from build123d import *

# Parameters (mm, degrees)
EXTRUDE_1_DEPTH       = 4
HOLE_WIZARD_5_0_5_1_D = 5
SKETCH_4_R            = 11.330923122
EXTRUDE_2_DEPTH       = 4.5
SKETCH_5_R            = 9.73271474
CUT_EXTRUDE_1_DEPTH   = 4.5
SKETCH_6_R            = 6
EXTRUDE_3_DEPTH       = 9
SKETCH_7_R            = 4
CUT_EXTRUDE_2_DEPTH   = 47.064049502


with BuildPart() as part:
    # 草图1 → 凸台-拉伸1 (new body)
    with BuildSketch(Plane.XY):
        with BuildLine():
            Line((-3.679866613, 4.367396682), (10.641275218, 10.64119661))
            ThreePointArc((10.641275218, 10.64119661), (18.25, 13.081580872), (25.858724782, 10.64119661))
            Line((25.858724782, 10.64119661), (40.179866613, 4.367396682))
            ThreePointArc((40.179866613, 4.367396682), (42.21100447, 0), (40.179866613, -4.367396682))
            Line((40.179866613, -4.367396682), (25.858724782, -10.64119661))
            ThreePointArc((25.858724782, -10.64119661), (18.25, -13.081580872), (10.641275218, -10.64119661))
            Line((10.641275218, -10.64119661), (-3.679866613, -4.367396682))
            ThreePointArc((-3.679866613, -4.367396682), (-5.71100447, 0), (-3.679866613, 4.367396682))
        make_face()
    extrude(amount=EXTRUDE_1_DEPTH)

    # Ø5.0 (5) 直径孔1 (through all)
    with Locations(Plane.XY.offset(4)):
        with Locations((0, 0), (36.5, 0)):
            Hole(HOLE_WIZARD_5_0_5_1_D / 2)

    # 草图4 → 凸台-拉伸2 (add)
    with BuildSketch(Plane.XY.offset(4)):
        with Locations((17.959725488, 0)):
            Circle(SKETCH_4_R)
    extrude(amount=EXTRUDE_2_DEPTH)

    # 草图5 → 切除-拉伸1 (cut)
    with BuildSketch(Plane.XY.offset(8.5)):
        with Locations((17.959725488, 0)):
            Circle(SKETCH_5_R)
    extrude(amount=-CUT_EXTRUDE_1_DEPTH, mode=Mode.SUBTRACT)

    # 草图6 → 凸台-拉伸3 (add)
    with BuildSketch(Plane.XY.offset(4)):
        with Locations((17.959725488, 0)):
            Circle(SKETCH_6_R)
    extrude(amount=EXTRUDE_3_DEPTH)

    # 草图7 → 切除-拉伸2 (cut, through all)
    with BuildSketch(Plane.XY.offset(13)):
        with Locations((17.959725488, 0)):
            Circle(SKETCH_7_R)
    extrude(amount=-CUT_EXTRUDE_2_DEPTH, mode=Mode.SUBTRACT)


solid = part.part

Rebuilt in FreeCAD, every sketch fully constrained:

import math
import FreeCAD as App
import Part
import Sketcher

V = App.Vector
Q = App.Units.Quantity

doc = App.newDocument("Part")
body = doc.addObject("PartDesign::Body", "Body")

# Sketch on XY plane
sketch1 = doc.addObject("Sketcher::SketchObject", "Sketch")
body.addObject(sketch1)
sketch1.AttachmentSupport = (doc.XY_Plane, [""])
sketch1.MapMode = "FlatFace"
sketch1.addGeometry([
    Part.LineSegment(V(10.641275, 10.641197, 0), V(-3.679867, 4.367397, 0)),  # 0
    Part.ArcOfCircle(Part.Circle(V(0, 0, 0), V(0, 0, 1), 5.711004), math.radians(130.116707), math.radians(229.883293)),  # 1
    Part.LineSegment(V(-3.679867, -4.367397, 0), V(10.641275, -10.641197, 0)),  # 2
    Part.ArcOfCircle(Part.Circle(V(18.25, 0, 0), V(0, 0, 1), 13.081581), math.radians(-125.565727), math.radians(-54.434273)),  # 3
    Part.LineSegment(V(25.858725, -10.641197, 0), V(40.179867, -4.367397, 0)),  # 4
    Part.ArcOfCircle(Part.Circle(V(36.5, 0, 0), V(0, 0, 1), 5.711004), math.radians(-49.883293), math.radians(49.883293)),  # 5
    Part.LineSegment(V(40.179867, 4.367397, 0), V(25.858725, 10.641197, 0)),  # 6
    Part.ArcOfCircle(Part.Circle(V(18.25, 0, 0), V(0, 0, 1), 13.081581), math.radians(54.434273), math.radians(125.565727)),  # 7
], False)
sketch1.addConstraint([
    Sketcher.Constraint("Coincident", 0, 2, 1, 1),
    Sketcher.Constraint("Coincident", 1, 2, 2, 1),
    Sketcher.Constraint("Coincident", 2, 2, 3, 1),
    Sketcher.Constraint("Coincident", 3, 2, 4, 1),
    Sketcher.Constraint("Coincident", 4, 2, 5, 1),
    Sketcher.Constraint("Coincident", 5, 2, 6, 1),
    Sketcher.Constraint("Coincident", 6, 2, 7, 1),
    Sketcher.Constraint("Coincident", 7, 2, 0, 1),
    Sketcher.Constraint("Coincident", 1, 3, -1, 1),
    Sketcher.Constraint("Coincident", 7, 3, 3, 3),
    Sketcher.Constraint("Equal", 1, 5),
    Sketcher.Constraint("Equal", 3, 7),
    Sketcher.Constraint("Symmetric", 4, 2, 5, 2, -1),
    Sketcher.Constraint("Symmetric", 3, 2, 6, 2, -1),
    Sketcher.Constraint("Parallel", 0, 4),
    Sketcher.Constraint("Parallel", 2, 6),
    Sketcher.Constraint("Horizontal", 2, 2, 3, 2),
    Sketcher.Constraint("Horizontal", 1, 2, 4, 2),
    Sketcher.Constraint("Horizontal", 0, 2, 5, 2),
    Sketcher.Constraint("DistanceX", -1, 1, 5, 3, Q("36.5 mm")),
    Sketcher.Constraint("Radius", 3, Q("13.081581 mm")),
    Sketcher.Constraint("Radius", 1, Q("5.711004 mm")),
    Sketcher.Constraint("DistanceY", 2, 2, 1, 2, Q("6.2738 mm")),
    Sketcher.Constraint("Distance", 0, Q("15.635078 mm")),
])
pad1 = doc.addObject("PartDesign::Pad", "Pad")
body.addObject(pad1)
pad1.Profile = sketch1
pad1.Length = 4

# Sketch on XY plane
sketch2 = doc.addObject("Sketcher::SketchObject", "Sketch001")
body.addObject(sketch2)
sketch2.AttachmentSupport = (doc.XY_Plane, [""])
sketch2.MapMode = "FlatFace"
sketch2.AttachmentOffset = App.Placement(V(0, 0, 4), App.Rotation())
sketch2.addGeometry([
    Part.Circle(V(0, 0, 0), V(0, 0, 1), 2.5),
    Part.Circle(V(36.5, 0, 0), V(0, 0, 1), 2.5),
], False)
sketch2.addConstraint([
    Sketcher.Constraint("Coincident", 0, 3, -1, 1),
    Sketcher.Constraint("Equal", 0, 1),
    Sketcher.Constraint("PointOnObject", 1, 3, -1),
    Sketcher.Constraint("Diameter", 0, Q("5 mm")),
    Sketcher.Constraint("DistanceX", -1, 1, 1, 3, Q("36.5 mm")),
])
doc.recompute()
hole = doc.addObject("PartDesign::Hole", "Hole")
body.addObject(hole)
hole.Profile = sketch2
hole.ThreadType = "None"
hole.Diameter = 5
hole.DepthType = "ThroughAll"

# Sketch on XY plane
sketch3 = doc.addObject("Sketcher::SketchObject", "Sketch002")
body.addObject(sketch3)
sketch3.AttachmentSupport = (doc.XY_Plane, [""])
sketch3.MapMode = "FlatFace"
sketch3.AttachmentOffset = App.Placement(V(0, 0, 4), App.Rotation())
sketch3.addGeometry(Part.Circle(V(17.959725, 0, 0), V(0, 0, 1), 11.330923), False)
sketch3.addConstraint([
    Sketcher.Constraint("PointOnObject", 0, 3, -1),
    Sketcher.Constraint("Diameter", 0, Q("22.661846 mm")),
    Sketcher.Constraint("DistanceX", -1, 1, 0, 3, Q("17.959725 mm")),
])
pad2 = doc.addObject("PartDesign::Pad", "Pad001")
body.addObject(pad2)
pad2.Profile = sketch3
pad2.Length = 4.5

# Sketch on XY plane
sketch4 = doc.addObject("Sketcher::SketchObject", "Sketch003")
body.addObject(sketch4)
sketch4.AttachmentSupport = (doc.XY_Plane, [""])
sketch4.MapMode = "FlatFace"
sketch4.AttachmentOffset = App.Placement(V(0, 0, 8.5), App.Rotation())
sketch4.addGeometry(Part.Circle(V(17.959725, 0, 0), V(0, 0, 1), 9.732715), False)
sketch4.addConstraint([
    Sketcher.Constraint("PointOnObject", 0, 3, -1),
    Sketcher.Constraint("Diameter", 0, Q("19.465429 mm")),
    Sketcher.Constraint("DistanceX", -1, 1, 0, 3, Q("17.959725 mm")),
])
pocket1 = doc.addObject("PartDesign::Pocket", "Pocket")
body.addObject(pocket1)
pocket1.Profile = sketch4
pocket1.Length = 4.5

# Sketch on XY plane
sketch5 = doc.addObject("Sketcher::SketchObject", "Sketch004")
body.addObject(sketch5)
sketch5.AttachmentSupport = (doc.XY_Plane, [""])
sketch5.MapMode = "FlatFace"
sketch5.AttachmentOffset = App.Placement(V(0, 0, 4), App.Rotation())
sketch5.addGeometry(Part.Circle(V(17.959725, 0, 0), V(0, 0, 1), 6), False)
sketch5.addConstraint([
    Sketcher.Constraint("PointOnObject", 0, 3, -1),
    Sketcher.Constraint("Diameter", 0, Q("12 mm")),
    Sketcher.Constraint("DistanceX", -1, 1, 0, 3, Q("17.959725 mm")),
])
pad3 = doc.addObject("PartDesign::Pad", "Pad002")
body.addObject(pad3)
pad3.Profile = sketch5
pad3.Length = 9

# Sketch on XY plane
sketch6 = doc.addObject("Sketcher::SketchObject", "Sketch005")
body.addObject(sketch6)
sketch6.AttachmentSupport = (doc.XY_Plane, [""])
sketch6.MapMode = "FlatFace"
sketch6.AttachmentOffset = App.Placement(V(0, 0, 13), App.Rotation())
sketch6.addGeometry(Part.Circle(V(17.959725, 0, 0), V(0, 0, 1), 4), False)
sketch6.addConstraint([
    Sketcher.Constraint("PointOnObject", 0, 3, -1),
    Sketcher.Constraint("Diameter", 0, Q("8 mm")),
    Sketcher.Constraint("DistanceX", -1, 1, 0, 3, Q("17.959725 mm")),
])
pocket2 = doc.addObject("PartDesign::Pocket", "Pocket001")
body.addObject(pocket2)
pocket2.Profile = sketch6
pocket2.Type = "ThroughAll"

doc.recompute()
